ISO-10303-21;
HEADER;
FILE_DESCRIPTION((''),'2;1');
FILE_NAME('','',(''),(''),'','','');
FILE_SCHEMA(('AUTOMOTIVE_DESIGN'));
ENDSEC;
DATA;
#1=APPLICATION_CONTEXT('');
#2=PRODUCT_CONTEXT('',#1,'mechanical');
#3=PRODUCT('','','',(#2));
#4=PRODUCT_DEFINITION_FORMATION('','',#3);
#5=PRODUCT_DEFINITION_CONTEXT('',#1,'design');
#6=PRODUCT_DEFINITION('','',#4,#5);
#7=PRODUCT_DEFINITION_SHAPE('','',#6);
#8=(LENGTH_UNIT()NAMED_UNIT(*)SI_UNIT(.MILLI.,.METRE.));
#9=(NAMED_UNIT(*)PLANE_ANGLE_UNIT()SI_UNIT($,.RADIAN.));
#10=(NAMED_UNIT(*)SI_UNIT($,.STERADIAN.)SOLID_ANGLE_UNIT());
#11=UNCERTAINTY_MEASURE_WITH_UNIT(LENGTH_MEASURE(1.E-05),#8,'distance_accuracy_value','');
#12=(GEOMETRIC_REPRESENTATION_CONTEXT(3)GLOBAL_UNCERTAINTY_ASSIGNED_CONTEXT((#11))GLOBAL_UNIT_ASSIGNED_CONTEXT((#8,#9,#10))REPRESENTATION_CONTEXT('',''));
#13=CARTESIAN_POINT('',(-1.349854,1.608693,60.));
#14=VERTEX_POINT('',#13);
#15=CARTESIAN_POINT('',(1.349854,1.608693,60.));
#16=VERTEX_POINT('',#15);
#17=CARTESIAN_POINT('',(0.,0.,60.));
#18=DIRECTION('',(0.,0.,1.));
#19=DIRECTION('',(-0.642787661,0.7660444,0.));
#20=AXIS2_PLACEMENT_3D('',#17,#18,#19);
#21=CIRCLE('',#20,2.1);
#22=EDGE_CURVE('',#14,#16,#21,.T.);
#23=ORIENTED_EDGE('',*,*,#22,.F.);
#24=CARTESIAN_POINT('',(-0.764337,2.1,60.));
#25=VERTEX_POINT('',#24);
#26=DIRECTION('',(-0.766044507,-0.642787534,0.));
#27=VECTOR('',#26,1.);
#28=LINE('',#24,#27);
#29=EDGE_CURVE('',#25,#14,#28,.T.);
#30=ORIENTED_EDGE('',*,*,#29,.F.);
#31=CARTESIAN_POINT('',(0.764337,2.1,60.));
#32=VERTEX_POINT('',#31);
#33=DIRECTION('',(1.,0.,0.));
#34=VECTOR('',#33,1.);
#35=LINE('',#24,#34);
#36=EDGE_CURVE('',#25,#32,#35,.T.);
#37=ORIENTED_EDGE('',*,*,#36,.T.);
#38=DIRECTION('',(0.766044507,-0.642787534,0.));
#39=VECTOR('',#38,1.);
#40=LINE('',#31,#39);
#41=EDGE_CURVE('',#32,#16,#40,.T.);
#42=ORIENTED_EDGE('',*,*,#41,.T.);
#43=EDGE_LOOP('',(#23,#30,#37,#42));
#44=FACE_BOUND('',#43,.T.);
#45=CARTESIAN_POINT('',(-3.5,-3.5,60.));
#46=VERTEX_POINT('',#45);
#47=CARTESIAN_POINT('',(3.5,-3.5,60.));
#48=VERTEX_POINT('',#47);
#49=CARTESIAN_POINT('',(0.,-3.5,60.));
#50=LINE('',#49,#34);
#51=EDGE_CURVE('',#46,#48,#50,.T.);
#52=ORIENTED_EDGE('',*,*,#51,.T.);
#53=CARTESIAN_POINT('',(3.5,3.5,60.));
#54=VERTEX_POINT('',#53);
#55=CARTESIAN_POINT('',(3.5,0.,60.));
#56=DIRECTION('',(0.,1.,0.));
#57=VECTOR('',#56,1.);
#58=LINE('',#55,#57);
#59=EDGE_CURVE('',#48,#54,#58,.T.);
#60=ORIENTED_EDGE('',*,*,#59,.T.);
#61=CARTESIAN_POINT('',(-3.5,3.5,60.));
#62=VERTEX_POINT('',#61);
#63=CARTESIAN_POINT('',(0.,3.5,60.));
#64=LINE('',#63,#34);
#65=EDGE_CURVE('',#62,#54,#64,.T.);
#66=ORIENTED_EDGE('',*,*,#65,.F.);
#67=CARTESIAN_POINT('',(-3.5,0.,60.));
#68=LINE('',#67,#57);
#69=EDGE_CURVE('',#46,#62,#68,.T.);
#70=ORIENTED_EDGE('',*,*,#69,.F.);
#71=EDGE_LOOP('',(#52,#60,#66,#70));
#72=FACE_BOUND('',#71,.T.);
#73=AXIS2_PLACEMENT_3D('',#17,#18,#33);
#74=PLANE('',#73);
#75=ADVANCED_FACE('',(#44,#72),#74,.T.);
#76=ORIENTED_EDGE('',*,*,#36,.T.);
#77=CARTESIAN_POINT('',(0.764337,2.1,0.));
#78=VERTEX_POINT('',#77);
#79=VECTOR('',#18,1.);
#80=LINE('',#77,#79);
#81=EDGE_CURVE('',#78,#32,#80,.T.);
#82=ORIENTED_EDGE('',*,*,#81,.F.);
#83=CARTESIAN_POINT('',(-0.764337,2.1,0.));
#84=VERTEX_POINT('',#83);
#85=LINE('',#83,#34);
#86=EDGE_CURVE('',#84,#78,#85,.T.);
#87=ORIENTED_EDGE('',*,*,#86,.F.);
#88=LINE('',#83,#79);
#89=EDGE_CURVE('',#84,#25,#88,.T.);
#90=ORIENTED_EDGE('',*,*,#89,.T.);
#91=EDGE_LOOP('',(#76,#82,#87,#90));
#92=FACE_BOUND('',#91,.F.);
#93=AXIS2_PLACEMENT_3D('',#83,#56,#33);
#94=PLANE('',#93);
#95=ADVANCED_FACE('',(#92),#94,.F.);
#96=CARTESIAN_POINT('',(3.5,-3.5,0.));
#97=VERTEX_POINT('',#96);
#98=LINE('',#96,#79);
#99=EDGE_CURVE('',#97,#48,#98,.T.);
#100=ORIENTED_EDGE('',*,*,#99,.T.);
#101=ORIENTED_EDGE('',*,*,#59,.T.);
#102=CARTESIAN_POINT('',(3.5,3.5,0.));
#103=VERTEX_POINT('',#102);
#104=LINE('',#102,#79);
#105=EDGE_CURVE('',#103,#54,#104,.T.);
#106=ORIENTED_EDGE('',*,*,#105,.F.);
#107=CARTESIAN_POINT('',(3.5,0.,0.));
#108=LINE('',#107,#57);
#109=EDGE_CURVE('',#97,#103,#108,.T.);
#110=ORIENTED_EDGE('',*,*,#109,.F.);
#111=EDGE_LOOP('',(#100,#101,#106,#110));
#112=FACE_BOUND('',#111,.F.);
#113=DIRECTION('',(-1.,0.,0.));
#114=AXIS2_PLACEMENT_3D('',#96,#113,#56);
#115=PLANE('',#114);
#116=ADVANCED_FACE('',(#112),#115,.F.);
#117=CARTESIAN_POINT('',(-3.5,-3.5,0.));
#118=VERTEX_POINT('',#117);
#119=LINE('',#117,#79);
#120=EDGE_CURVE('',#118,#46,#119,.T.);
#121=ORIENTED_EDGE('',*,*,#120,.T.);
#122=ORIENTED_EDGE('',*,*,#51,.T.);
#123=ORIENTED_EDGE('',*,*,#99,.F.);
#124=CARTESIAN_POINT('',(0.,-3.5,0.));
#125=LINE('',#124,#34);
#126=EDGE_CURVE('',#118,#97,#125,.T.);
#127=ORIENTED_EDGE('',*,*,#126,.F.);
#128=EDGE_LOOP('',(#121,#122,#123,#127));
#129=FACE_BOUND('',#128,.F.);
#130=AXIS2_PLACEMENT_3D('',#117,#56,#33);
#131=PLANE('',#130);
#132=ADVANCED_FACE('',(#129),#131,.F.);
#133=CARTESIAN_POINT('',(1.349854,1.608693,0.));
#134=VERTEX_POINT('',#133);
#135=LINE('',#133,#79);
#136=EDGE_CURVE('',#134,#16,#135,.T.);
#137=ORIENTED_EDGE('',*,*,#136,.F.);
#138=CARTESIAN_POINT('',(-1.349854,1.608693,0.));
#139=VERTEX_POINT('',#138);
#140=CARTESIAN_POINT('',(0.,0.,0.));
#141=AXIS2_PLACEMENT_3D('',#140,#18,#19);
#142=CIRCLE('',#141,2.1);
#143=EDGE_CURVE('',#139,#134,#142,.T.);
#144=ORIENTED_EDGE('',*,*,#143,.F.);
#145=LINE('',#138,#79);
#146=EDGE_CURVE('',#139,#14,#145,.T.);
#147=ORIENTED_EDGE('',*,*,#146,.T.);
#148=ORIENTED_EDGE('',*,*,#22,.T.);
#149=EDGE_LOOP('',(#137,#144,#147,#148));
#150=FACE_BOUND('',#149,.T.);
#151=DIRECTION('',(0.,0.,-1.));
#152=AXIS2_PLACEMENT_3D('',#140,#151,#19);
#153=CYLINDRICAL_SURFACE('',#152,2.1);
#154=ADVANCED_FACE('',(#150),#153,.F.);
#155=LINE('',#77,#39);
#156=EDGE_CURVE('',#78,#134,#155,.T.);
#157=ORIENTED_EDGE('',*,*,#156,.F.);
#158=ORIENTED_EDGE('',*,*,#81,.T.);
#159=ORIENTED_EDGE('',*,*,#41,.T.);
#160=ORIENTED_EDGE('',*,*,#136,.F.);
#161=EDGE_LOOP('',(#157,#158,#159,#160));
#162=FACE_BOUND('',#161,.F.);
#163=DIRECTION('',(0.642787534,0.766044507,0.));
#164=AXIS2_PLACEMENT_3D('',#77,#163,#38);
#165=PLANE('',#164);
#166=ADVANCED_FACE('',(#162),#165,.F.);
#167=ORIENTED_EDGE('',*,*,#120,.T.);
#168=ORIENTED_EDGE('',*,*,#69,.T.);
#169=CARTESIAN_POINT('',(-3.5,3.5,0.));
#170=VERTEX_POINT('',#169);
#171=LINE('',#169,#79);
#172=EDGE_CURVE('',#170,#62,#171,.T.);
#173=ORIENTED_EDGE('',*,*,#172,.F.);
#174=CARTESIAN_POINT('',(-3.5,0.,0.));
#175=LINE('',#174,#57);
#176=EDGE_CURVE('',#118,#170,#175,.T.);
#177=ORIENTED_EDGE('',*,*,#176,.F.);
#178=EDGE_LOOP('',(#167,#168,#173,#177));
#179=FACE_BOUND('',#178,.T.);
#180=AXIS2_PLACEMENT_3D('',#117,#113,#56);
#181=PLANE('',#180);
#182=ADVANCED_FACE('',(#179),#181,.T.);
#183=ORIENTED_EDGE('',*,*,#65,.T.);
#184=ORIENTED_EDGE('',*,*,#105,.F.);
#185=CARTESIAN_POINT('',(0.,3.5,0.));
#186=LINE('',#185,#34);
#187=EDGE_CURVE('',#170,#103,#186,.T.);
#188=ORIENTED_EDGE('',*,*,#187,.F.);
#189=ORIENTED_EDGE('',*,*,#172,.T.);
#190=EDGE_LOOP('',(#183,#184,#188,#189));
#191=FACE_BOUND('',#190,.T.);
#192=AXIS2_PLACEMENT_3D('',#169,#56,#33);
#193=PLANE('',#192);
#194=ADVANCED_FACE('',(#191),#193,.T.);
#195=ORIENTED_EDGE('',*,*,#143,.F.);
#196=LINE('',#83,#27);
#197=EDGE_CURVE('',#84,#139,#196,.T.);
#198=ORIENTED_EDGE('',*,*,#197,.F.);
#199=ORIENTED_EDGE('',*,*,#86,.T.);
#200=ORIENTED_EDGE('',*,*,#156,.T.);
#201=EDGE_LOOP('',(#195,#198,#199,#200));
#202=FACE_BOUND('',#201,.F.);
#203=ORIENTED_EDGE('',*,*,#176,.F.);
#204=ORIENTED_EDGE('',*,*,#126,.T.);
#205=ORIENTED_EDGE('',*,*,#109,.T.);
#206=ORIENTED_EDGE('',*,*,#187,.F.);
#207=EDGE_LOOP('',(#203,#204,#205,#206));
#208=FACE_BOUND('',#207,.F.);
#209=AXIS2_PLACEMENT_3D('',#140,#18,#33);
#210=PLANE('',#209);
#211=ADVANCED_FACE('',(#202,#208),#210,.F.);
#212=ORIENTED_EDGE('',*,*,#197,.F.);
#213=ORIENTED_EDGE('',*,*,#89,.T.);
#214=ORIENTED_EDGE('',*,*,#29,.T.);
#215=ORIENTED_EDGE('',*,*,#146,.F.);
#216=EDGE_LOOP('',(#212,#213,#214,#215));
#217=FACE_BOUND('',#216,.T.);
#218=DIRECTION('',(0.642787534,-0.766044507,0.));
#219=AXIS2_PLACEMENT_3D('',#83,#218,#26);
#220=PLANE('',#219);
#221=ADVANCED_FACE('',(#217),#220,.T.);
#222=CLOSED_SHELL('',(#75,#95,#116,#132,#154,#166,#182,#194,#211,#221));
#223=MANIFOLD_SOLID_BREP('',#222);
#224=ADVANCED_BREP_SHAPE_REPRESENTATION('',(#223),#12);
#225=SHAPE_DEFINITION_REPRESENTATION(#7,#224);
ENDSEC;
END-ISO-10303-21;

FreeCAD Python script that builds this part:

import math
import FreeCAD as App
import Part
import Sketcher
Q = App.Units.Quantity


def add_polygon(sketch, points):
    """Adds a closed chain of lines whose ends are joined by coincident constraints."""
    first, n = sketch.GeometryCount, len(points)
    for a, b in zip(points, points[1:] + points[:1]):
        sketch.addGeometry(Part.LineSegment(App.Vector(*a, 0), App.Vector(*b, 0)), False)
    for i in range(n):
        sketch.addConstraint(Sketcher.Constraint("Coincident", first + i, 2, first + (i + 1) % n, 1))

doc = App.newDocument("Part")
body = doc.addObject("PartDesign::Body", "Body")

sketch1 = doc.addObject("Sketcher::SketchObject", "Sketch")
body.addObject(sketch1)
sketch1.AttachmentSupport = (doc.XY_Plane, [""])
sketch1.MapMode = "FlatFace"
add_polygon(sketch1, [(-3.5, 3.5), (-3.5, -3.5), (3.5, -3.5), (3.5, 3.5)])
sketch1.addGeometry(Part.ArcOfCircle(Part.Circle(App.Vector(0, 0, 0), App.Vector(0, 0, 1), 2.1), math.radians(130), math.radians(410)), False)
sketch1.addGeometry(Part.LineSegment(App.Vector(-1.3, 1.6, 0), App.Vector(-0.8, 2.1, 0)), False)
sketch1.addGeometry(Part.LineSegment(App.Vector(-0.8, 2.1, 0), App.Vector(0.8, 2.1, 0)), False)
sketch1.addGeometry(Part.LineSegment(App.Vector(0.8, 2.1, 0), App.Vector(1.3, 1.6, 0)), False)
sketch1.addConstraint([
    Sketcher.Constraint("Tangent", 4, 1, 5, 1),
    Sketcher.Constraint("Coincident", 5, 2, 6, 1),
    Sketcher.Constraint("Coincident", 6, 2, 7, 1),
    Sketcher.Constraint("Tangent", 7, 2, 4, 2),
    Sketcher.Constraint("Vertical", 0),
    Sketcher.Constraint("Horizontal", 1),
    Sketcher.Constraint("Vertical", 2),
    Sketcher.Constraint("Horizontal", 3),
    Sketcher.Constraint("Horizontal", 6),
    Sketcher.Constraint("Coincident", 4, 3, -1, 1),
    Sketcher.Constraint("Symmetric", 0, 2, 2, 2, -1, 1),
    Sketcher.Constraint("Horizontal", 4, 1, 7, 2),
    Sketcher.Constraint("Equal", 3, 0),
    Sketcher.Constraint("Radius", 4, Q("2.1 mm")),
    Sketcher.Constraint("DistanceX", 1, 1, 1, 2, Q("7 mm")),
    Sketcher.Constraint("Angle", 5, Q("39.999994 deg")),
    Sketcher.Constraint("DistanceY", -1, 1, 5, 2, Q("2.1 mm")),
])
pad1 = doc.addObject("PartDesign::Pad", "Pad")
body.addObject(pad1)
pad1.Profile = sketch1
pad1.Length = 60

doc.recompute()
